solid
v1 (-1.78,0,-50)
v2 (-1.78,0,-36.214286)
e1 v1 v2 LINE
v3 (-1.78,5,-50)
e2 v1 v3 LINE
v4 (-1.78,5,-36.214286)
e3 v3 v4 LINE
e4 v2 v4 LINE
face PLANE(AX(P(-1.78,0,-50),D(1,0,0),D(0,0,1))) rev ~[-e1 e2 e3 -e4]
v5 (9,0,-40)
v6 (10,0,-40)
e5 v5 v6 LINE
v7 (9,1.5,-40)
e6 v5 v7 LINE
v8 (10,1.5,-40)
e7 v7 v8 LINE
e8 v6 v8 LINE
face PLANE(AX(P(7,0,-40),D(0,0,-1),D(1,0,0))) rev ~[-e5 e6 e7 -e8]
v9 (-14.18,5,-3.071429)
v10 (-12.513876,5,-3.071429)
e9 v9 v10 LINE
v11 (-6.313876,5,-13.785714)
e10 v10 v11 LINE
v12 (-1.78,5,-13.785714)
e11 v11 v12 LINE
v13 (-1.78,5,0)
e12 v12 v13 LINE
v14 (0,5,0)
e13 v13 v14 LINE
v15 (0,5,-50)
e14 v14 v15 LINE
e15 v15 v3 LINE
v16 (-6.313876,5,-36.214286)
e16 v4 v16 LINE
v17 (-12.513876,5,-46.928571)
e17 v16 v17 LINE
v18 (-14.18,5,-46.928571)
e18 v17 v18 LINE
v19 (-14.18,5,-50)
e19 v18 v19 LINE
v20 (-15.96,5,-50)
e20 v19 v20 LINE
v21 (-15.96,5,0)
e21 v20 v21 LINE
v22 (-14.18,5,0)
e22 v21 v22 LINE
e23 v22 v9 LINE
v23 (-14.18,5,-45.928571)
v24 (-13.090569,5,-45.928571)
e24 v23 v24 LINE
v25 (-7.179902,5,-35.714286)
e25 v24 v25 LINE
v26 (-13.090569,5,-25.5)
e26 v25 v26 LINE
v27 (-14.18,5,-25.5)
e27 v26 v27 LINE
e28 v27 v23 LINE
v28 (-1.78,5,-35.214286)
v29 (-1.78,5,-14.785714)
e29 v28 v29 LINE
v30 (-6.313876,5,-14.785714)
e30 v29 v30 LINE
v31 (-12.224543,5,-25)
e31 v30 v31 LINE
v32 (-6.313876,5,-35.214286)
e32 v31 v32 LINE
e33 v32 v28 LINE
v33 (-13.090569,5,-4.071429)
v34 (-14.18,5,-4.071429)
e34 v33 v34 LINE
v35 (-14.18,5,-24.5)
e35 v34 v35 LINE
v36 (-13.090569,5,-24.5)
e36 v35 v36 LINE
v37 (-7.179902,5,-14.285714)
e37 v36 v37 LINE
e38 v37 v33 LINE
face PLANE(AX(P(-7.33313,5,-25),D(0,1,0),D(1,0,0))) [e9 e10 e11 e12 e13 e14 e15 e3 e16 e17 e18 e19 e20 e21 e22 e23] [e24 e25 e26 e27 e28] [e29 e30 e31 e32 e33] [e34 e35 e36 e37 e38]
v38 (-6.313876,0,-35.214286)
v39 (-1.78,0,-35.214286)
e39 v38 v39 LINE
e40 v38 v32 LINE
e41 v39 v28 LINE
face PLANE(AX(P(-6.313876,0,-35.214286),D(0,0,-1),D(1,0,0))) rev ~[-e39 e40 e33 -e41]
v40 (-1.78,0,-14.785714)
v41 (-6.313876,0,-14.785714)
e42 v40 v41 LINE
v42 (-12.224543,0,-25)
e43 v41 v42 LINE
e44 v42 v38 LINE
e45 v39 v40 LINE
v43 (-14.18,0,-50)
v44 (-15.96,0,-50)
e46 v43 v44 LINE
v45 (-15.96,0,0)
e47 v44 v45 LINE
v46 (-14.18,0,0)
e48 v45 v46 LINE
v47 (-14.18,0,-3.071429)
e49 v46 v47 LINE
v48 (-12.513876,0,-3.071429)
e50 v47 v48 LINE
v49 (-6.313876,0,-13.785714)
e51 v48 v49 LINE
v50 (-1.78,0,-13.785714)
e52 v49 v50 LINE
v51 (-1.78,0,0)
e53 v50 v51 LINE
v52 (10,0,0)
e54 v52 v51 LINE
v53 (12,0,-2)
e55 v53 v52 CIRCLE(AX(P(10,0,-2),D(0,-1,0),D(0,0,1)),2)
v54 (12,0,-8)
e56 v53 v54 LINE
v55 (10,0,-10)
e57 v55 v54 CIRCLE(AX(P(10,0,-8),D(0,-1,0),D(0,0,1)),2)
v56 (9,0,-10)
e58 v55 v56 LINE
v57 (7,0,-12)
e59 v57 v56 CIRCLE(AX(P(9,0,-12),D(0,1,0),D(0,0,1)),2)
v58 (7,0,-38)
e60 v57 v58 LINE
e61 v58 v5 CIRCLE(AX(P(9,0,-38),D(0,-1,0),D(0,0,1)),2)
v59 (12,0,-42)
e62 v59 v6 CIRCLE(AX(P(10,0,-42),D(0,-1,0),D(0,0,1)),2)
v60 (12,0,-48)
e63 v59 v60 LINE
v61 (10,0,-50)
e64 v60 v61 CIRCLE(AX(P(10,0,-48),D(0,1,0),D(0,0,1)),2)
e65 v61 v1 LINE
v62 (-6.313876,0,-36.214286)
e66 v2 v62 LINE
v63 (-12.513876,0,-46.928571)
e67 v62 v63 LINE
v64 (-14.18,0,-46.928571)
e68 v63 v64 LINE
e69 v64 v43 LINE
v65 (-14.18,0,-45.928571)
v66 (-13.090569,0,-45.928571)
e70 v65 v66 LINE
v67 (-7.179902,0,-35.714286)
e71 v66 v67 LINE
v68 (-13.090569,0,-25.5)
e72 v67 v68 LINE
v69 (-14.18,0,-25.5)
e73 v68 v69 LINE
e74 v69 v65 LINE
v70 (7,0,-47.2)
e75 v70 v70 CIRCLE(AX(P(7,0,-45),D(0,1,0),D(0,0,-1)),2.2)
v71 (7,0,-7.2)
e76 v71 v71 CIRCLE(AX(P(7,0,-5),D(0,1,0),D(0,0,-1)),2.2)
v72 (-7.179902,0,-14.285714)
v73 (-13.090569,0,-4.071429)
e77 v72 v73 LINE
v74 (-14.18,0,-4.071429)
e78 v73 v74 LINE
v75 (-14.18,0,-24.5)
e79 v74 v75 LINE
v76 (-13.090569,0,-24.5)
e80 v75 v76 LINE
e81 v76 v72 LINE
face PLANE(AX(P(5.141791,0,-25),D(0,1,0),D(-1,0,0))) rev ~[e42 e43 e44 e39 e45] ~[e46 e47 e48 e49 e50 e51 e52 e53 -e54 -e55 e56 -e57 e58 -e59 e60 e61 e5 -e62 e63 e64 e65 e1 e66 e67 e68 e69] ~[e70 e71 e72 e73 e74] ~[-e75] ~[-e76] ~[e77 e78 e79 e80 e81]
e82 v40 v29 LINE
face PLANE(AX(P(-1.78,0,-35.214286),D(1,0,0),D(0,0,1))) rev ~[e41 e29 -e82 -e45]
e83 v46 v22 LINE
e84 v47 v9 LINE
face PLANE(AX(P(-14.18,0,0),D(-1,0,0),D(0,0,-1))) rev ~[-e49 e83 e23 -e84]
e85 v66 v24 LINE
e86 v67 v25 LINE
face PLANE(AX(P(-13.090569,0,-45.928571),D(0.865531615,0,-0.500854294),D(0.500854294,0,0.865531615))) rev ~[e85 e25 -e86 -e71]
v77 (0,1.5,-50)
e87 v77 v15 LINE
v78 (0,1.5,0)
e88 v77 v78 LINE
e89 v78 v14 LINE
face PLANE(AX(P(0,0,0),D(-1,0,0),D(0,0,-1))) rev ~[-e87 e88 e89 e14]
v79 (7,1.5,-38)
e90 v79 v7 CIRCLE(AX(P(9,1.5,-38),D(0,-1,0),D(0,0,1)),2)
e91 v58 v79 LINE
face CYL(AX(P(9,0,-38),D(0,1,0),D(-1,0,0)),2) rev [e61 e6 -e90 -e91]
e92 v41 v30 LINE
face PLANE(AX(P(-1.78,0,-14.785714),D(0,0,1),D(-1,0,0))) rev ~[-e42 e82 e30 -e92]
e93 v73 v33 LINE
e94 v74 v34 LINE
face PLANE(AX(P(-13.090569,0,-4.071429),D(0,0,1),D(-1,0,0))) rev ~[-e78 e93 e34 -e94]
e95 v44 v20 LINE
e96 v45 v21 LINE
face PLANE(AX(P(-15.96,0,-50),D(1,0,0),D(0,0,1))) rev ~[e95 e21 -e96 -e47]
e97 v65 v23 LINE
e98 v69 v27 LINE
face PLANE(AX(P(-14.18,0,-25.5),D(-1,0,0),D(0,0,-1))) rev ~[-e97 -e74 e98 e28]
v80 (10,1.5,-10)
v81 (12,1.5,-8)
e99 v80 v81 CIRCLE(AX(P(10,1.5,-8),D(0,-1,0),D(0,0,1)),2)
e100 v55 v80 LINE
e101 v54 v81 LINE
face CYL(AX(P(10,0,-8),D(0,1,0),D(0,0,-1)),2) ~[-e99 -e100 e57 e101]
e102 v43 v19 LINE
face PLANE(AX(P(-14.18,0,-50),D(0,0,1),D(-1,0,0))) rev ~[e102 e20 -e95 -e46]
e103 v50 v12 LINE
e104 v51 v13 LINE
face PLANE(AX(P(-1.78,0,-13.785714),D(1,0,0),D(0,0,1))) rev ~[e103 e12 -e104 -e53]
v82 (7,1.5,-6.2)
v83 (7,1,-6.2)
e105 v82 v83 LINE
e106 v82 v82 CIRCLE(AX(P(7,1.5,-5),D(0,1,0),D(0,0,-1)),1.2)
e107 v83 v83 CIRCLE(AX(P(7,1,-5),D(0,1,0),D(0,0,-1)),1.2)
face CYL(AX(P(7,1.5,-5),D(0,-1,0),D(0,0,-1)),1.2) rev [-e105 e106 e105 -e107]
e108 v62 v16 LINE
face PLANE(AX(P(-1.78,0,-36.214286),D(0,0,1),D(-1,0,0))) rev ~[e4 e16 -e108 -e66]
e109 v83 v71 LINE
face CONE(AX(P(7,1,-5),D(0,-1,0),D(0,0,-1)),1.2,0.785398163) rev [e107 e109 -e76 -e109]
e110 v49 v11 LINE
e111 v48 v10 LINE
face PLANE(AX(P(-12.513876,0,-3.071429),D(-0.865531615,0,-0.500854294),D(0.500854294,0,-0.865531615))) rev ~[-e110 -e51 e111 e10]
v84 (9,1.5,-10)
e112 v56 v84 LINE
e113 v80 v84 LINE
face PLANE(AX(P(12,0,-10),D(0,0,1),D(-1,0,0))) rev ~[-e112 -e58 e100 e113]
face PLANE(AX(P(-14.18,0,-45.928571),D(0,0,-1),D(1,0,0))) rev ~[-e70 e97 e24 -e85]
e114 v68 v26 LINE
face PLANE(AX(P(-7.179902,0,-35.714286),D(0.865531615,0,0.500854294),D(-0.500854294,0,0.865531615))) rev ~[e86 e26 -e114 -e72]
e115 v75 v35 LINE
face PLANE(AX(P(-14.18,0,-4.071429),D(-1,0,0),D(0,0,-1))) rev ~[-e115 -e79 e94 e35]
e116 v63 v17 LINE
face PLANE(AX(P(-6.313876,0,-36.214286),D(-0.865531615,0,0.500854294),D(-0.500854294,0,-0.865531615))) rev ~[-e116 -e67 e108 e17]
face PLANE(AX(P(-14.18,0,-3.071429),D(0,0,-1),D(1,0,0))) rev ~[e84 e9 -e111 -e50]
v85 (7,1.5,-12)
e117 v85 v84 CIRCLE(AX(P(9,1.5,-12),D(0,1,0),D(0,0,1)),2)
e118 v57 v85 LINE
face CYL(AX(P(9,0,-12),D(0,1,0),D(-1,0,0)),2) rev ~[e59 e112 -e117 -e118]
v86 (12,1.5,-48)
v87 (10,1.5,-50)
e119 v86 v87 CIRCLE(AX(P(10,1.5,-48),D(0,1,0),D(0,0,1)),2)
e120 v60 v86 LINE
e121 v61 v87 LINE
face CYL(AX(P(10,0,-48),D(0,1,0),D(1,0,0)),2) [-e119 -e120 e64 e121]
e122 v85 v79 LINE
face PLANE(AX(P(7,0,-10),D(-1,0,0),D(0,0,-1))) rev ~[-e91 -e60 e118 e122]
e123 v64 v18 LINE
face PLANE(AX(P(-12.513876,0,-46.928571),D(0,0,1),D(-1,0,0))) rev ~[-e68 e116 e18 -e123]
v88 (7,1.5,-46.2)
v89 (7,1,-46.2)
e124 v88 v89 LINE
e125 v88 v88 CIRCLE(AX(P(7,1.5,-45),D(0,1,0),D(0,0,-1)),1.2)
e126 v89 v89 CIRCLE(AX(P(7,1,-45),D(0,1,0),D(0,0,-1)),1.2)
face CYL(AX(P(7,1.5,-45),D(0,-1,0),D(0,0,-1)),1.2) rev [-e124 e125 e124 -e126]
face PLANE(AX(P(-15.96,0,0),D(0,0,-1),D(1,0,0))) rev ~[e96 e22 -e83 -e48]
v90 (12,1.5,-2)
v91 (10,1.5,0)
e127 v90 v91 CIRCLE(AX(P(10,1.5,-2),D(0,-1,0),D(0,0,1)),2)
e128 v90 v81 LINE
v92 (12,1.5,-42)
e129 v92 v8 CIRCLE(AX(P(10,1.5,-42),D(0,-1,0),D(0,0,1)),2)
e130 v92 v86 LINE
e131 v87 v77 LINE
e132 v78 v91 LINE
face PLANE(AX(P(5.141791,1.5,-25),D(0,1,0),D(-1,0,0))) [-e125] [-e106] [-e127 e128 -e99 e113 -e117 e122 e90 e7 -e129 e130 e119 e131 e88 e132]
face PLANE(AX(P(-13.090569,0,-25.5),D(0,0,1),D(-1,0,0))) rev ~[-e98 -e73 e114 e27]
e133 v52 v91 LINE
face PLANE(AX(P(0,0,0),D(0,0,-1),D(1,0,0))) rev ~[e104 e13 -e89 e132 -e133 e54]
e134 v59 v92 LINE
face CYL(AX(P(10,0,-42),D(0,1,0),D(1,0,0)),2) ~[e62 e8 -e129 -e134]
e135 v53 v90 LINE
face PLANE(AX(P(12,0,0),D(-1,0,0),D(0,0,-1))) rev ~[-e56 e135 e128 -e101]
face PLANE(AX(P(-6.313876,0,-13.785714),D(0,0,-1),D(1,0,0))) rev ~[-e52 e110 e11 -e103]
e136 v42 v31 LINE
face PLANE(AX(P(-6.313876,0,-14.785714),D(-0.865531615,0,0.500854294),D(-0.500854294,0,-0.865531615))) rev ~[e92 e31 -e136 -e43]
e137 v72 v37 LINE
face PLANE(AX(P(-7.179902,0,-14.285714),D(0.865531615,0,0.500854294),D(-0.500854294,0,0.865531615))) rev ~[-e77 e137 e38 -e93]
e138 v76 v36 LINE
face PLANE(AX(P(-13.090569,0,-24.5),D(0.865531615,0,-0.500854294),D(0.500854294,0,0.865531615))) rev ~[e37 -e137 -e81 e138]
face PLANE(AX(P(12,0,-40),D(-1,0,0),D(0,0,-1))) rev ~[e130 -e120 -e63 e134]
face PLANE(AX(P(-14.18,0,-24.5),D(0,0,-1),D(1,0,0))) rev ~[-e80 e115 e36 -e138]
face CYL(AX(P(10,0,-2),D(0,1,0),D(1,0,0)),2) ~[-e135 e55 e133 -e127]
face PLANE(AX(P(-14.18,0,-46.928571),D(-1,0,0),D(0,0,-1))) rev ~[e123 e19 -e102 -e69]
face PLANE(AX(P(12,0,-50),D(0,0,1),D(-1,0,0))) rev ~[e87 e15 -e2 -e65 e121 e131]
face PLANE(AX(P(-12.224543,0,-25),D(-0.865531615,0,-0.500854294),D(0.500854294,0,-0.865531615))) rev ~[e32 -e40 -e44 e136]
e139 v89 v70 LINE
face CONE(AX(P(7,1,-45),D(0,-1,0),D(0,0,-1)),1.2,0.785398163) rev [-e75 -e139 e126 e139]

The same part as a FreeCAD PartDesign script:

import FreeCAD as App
import Part
import Sketcher
from FreeCAD import Vector
Q = App.Units.Quantity


def edges_at(feature, points):
    """Names of the edges that pass closest to the given points."""
    edges = feature.Shape.Edges
    near = lambda p: min(range(len(edges)), key=lambda i: edges[i].distToShape(Part.Vertex(*p))[0])
    return sorted({f"Edge{near(p) + 1}" for p in points})


def add_polygon(sketch, points):
    """Adds a closed chain of lines whose ends are joined by coincident constraints."""
    first, n = sketch.GeometryCount, len(points)
    for a, b in zip(points, points[1:] + points[:1]):
        sketch.addGeometry(Part.LineSegment(App.Vector(*a, 0), App.Vector(*b, 0)), False)
    for i in range(n):
        sketch.addConstraint(Sketcher.Constraint("Coincident", first + i, 2, first + (i + 1) % n, 1))

doc = App.newDocument("Part")
body = doc.addObject("PartDesign::Body", "Body")

sketch1 = body.newObject("Sketcher::SketchObject", "Sketch")
sketch1.AttachmentSupport = (doc.getObject("XZ_Plane"), [""])
sketch1.MapMode = "FlatFace"
add_polygon(sketch1, [(-14.2, -46.9), (-14.2, -50), (-16, -50), (-16, 0), (-14.2, 0), (-14.2, -3.1), (-12.5, -3.1), (-6.3, -13.8), (-1.8, -13.8), (-1.8, 0), (0, 0), (0, -50), (-1.8, -50), (-1.8, -36.2), (-6.3, -36.2), (-12.5, -46.9)])
add_polygon(sketch1, [(-13.1, -4.1), (-14.2, -4.1), (-14.2, -24.5), (-13.1, -24.5), (-7.2, -14.3)])
add_polygon(sketch1, [(-14.2, -45.9), (-13.1, -45.9), (-7.2, -35.7), (-13.1, -25.5), (-14.2, -25.5)])
add_polygon(sketch1, [(-1.8, -14.8), (-6.3, -14.8), (-12.2, -25), (-6.3, -35.2), (-1.8, -35.2)])
sketch1.addConstraint(Sketcher.Constraint("Vertical", 0))
sketch1.addConstraint(Sketcher.Constraint("Horizontal", 1))
sketch1.addConstraint(Sketcher.Constraint("Vertical", 2))
sketch1.addConstraint(Sketcher.Constraint("Horizontal", 3))
sketch1.addConstraint(Sketcher.Constraint("Vertical", 4))
sketch1.addConstraint(Sketcher.Constraint("Horizontal", 5))
sketch1.addConstraint(Sketcher.Constraint("Horizontal", 7))
sketch1.addConstraint(Sketcher.Constraint("Vertical", 8))
sketch1.addConstraint(Sketcher.Constraint("Horizontal", 9))
sketch1.addConstraint(Sketcher.Constraint("Vertical", 10))
sketch1.addConstraint(Sketcher.Constraint("Horizontal", 11))
sketch1.addConstraint(Sketcher.Constraint("Vertical", 12))
sketch1.addConstraint(Sketcher.Constraint("Horizontal", 13))
sketch1.addConstraint(Sketcher.Constraint("Horizontal", 15))
sketch1.addConstraint(Sketcher.Constraint("Horizontal", 16))
sketch1.addConstraint(Sketcher.Constraint("Vertical", 17))
sketch1.addConstraint(Sketcher.Constraint("Horizontal", 18))
sketch1.addConstraint(Sketcher.Constraint("Horizontal", 21))
sketch1.addConstraint(Sketcher.Constraint("Horizontal", 24))
sketch1.addConstraint(Sketcher.Constraint("Vertical", 25))
sketch1.addConstraint(Sketcher.Constraint("Horizontal", 26))
sketch1.addConstraint(Sketcher.Constraint("Horizontal", 29))
sketch1.addConstraint(Sketcher.Constraint("Vertical", 30))
sketch1.addConstraint(Sketcher.Constraint("Coincident", 9, 2, -1, 1))
sketch1.addConstraint(Sketcher.Constraint("PointOnObject", 2, 2, -1))
sketch1.addConstraint(Sketcher.Constraint("Parallel", 14, 19))
sketch1.addConstraint(Sketcher.Constraint("Parallel", 6, 20))
sketch1.addConstraint(Sketcher.Constraint("Parallel", 19, 22))
sketch1.addConstraint(Sketcher.Constraint("Parallel", 20, 23))
sketch1.addConstraint(Sketcher.Constraint("Parallel", 22, 27))
sketch1.addConstraint(Sketcher.Constraint("Parallel", 23, 28))
sketch1.addConstraint(Sketcher.Constraint("Horizontal", 1, 2, 10, 2))
sketch1.addConstraint(Sketcher.Constraint("Vertical", 0, 2, 3, 2))
sketch1.addConstraint(Sketcher.Constraint("Vertical", 8, 2, 11, 2))
sketch1.addConstraint(Sketcher.Constraint("Vertical", 6, 2, 13, 2))
sketch1.addConstraint(Sketcher.Constraint("Vertical", 5, 2, 14, 2))
sketch1.addConstraint(Sketcher.Constraint("Vertical", 15, 2, 16, 2))
sketch1.addConstraint(Sketcher.Constraint("Vertical", 18, 2, 20, 2))
sketch1.addConstraint(Sketcher.Constraint("Vertical", 20, 2, 21, 2))
sketch1.addConstraint(Sketcher.Constraint("Vertical", 19, 2, 22, 2))
sketch1.addConstraint(Sketcher.Constraint("Vertical", 21, 2, 23, 2))
sketch1.addConstraint(Sketcher.Constraint("Vertical", 17, 2, 24, 2))
sketch1.addConstraint(Sketcher.Constraint("Vertical", 13, 2, 26, 2))
sketch1.addConstraint(Sketcher.Constraint("Vertical", 26, 2, 28, 2))
sketch1.addConstraint(Sketcher.Constraint("Vertical", 12, 2, 29, 2))
sketch1.addConstraint(Sketcher.Constraint("Equal", 3, 9))
sketch1.addConstraint(Sketcher.Constraint("Equal", 0, 4))
sketch1.addConstraint(Sketcher.Constraint("Equal", 8, 12))
sketch1.addConstraint(Sketcher.Constraint("Equal", 25, 30))
sketch1.addConstraint(Sketcher.Constraint("DistanceY", 2, 1, 2, 2, Q("50 mm")))
sketch1.addConstraint(Sketcher.Constraint("DistanceY", 27, 2, -1, 1, Q("25 mm")))
sketch1.addConstraint(Sketcher.Constraint("DistanceY", 16, 2, 4, 2, Q("1 mm")))
sketch1.addConstraint(Sketcher.Constraint("DistanceY", 14, 2, 21, 2, Q("1 mm")))
sketch1.addConstraint(Sketcher.Constraint("DistanceY", 23, 2, 18, 2, Q("1 mm")))
sketch1.addConstraint(Sketcher.Constraint("DistanceY", 26, 2, 6, 2, Q("1 mm")))
sketch1.addConstraint(Sketcher.Constraint("DistanceX", 1, 2, 1, 1, Q("1.78 mm")))
sketch1.addConstraint(Sketcher.Constraint("DistanceX", 5, 2, 6, 2, Q("6.2 mm")))
sketch1.addConstraint(Sketcher.Constraint("DistanceX", 4, 2, 7, 2, Q("12.4 mm")))
sketch1.addConstraint(Sketcher.Constraint("DistanceX", 16, 2, 16, 1, Q("1.089431 mm")))
sketch1.addConstraint(Sketcher.Constraint("DistanceY", 0, 2, 0, 1, Q("3.071429 mm")))
sketch1.addConstraint(Sketcher.Constraint("DistanceX", 5, 1, 5, 2, Q("1.666124 mm")))
pad1 = body.newObject("PartDesign::Pad", "Pad")
pad1.Profile = sketch1
pad1.Length = 5
pad1.Reversed = True

sketch2 = body.newObject("Sketcher::SketchObject", "Sketch001")
sketch2.AttachmentSupport = (doc.getObject("XZ_Plane"), [""])
sketch2.MapMode = "FlatFace"
add_polygon(sketch2, [(12, -50), (12, -40), (7, -40), (7, -10), (12, -10), (12, 0), (0, 0), (0, -50)])
sketch2.addConstraint(Sketcher.Constraint("Vertical", 0))
sketch2.addConstraint(Sketcher.Constraint("Horizontal", 1))
sketch2.addConstraint(Sketcher.Constraint("Vertical", 2))
sketch2.addConstraint(Sketcher.Constraint("Horizontal", 3))
sketch2.addConstraint(Sketcher.Constraint("Vertical", 4))
sketch2.addConstraint(Sketcher.Constraint("Horizontal", 5))
sketch2.addConstraint(Sketcher.Constraint("Vertical", 6))
sketch2.addConstraint(Sketcher.Constraint("Horizontal", 7))
sketch2.addConstraint(Sketcher.Constraint("Coincident", 5, 2, -1, 1))
sketch2.addConstraint(Sketcher.Constraint("Vertical", 0, 2, 3, 2))
sketch2.addConstraint(Sketcher.Constraint("Equal", 0, 4))
sketch2.addConstraint(Sketcher.Constraint("DistanceX", 1, 2, 1, 1, Q("5 mm")))
sketch2.addConstraint(Sketcher.Constraint("DistanceX", 5, 2, 5, 1, Q("12 mm")))
sketch2.addConstraint(Sketcher.Constraint("DistanceY", 0, 1, 0, 2, Q("10 mm")))
sketch2.addConstraint(Sketcher.Constraint("DistanceY", 2, 1, 2, 2, Q("30 mm")))
pad2 = body.newObject("PartDesign::Pad", "Pad001")
pad2.Profile = sketch2
pad2.Length = 1.5
pad2.Reversed = True
doc.recompute()

fillet = body.newObject("PartDesign::Fillet", "Fillet")
fillet.Base = (pad2, edges_at(pad2, [
    (12, 0.75, 0),
    (12, 0.75, -10),
    (7, 0.75, -10),
    (7, 0.75, -40),
    (12, 0.75, -40),
    (12, 0.75, -50),
]))
fillet.Radius = 2

sketch3 = body.newObject("Sketcher::SketchObject", "Sketch002")
sketch3.AttachmentSupport = (doc.getObject("YZ_Plane"), [""])
sketch3.MapMode = "FlatFace"
sketch3.AttachmentOffset = App.Placement(Vector(0, 0, 7), App.Rotation())
add_polygon(sketch3, [(1.5, -5), (0, -5), (0, -7.2), (1, -6.2), (1.5, -6.2)])
sketch3.addGeometry(Part.LineSegment(Vector(0, -5, 0), Vector(1.5, -5, 0)), True)
sketch3.addConstraint(Sketcher.Constraint("Horizontal", 0))
sketch3.addConstraint(Sketcher.Constraint("Vertical", 1))
sketch3.addConstraint(Sketcher.Constraint("Horizontal", 3))
sketch3.addConstraint(Sketcher.Constraint("Vertical", 4))
sketch3.addConstraint(Sketcher.Constraint("Horizontal", 5))
sketch3.addConstraint(Sketcher.Constraint("Coincident", 5, 1, 0, 2))
sketch3.addConstraint(Sketcher.Constraint("PointOnObject", 0, 2, -2))
sketch3.addConstraint(Sketcher.Constraint("Vertical", 3, 2, 5, 2))
sketch3.addConstraint(Sketcher.Constraint("Angle", 2, Q("45 deg")))
sketch3.addConstraint(Sketcher.Constraint("DistanceX", 0, 2, 0, 1, Q("1.5 mm")))
sketch3.addConstraint(Sketcher.Constraint("DistanceX", 3, 1, 3, 2, Q("0.5 mm")))
sketch3.addConstraint(Sketcher.Constraint("DistanceY", 1, 2, 1, 1, Q("2.2 mm")))
sketch3.addConstraint(Sketcher.Constraint("DistanceY", 0, 2, -1, 1, Q("5 mm")))
groove = body.newObject("PartDesign::Groove", "Groove")
groove.Profile = sketch3
groove.ReferenceAxis = (sketch3, ["Axis0"])
groove.Angle = 360
doc.recompute()

linearpattern = body.newObject("PartDesign::LinearPattern", "LinearPattern")
linearpattern.Originals = [groove]
linearpattern.Direction = (doc.getObject("Z_Axis"), [""])
linearpattern.Mode = "offset"
linearpattern.Offset = 40
linearpattern.Occurrences = 2
linearpattern.Reversed = True
body.Tip = linearpattern

doc.recompute()
